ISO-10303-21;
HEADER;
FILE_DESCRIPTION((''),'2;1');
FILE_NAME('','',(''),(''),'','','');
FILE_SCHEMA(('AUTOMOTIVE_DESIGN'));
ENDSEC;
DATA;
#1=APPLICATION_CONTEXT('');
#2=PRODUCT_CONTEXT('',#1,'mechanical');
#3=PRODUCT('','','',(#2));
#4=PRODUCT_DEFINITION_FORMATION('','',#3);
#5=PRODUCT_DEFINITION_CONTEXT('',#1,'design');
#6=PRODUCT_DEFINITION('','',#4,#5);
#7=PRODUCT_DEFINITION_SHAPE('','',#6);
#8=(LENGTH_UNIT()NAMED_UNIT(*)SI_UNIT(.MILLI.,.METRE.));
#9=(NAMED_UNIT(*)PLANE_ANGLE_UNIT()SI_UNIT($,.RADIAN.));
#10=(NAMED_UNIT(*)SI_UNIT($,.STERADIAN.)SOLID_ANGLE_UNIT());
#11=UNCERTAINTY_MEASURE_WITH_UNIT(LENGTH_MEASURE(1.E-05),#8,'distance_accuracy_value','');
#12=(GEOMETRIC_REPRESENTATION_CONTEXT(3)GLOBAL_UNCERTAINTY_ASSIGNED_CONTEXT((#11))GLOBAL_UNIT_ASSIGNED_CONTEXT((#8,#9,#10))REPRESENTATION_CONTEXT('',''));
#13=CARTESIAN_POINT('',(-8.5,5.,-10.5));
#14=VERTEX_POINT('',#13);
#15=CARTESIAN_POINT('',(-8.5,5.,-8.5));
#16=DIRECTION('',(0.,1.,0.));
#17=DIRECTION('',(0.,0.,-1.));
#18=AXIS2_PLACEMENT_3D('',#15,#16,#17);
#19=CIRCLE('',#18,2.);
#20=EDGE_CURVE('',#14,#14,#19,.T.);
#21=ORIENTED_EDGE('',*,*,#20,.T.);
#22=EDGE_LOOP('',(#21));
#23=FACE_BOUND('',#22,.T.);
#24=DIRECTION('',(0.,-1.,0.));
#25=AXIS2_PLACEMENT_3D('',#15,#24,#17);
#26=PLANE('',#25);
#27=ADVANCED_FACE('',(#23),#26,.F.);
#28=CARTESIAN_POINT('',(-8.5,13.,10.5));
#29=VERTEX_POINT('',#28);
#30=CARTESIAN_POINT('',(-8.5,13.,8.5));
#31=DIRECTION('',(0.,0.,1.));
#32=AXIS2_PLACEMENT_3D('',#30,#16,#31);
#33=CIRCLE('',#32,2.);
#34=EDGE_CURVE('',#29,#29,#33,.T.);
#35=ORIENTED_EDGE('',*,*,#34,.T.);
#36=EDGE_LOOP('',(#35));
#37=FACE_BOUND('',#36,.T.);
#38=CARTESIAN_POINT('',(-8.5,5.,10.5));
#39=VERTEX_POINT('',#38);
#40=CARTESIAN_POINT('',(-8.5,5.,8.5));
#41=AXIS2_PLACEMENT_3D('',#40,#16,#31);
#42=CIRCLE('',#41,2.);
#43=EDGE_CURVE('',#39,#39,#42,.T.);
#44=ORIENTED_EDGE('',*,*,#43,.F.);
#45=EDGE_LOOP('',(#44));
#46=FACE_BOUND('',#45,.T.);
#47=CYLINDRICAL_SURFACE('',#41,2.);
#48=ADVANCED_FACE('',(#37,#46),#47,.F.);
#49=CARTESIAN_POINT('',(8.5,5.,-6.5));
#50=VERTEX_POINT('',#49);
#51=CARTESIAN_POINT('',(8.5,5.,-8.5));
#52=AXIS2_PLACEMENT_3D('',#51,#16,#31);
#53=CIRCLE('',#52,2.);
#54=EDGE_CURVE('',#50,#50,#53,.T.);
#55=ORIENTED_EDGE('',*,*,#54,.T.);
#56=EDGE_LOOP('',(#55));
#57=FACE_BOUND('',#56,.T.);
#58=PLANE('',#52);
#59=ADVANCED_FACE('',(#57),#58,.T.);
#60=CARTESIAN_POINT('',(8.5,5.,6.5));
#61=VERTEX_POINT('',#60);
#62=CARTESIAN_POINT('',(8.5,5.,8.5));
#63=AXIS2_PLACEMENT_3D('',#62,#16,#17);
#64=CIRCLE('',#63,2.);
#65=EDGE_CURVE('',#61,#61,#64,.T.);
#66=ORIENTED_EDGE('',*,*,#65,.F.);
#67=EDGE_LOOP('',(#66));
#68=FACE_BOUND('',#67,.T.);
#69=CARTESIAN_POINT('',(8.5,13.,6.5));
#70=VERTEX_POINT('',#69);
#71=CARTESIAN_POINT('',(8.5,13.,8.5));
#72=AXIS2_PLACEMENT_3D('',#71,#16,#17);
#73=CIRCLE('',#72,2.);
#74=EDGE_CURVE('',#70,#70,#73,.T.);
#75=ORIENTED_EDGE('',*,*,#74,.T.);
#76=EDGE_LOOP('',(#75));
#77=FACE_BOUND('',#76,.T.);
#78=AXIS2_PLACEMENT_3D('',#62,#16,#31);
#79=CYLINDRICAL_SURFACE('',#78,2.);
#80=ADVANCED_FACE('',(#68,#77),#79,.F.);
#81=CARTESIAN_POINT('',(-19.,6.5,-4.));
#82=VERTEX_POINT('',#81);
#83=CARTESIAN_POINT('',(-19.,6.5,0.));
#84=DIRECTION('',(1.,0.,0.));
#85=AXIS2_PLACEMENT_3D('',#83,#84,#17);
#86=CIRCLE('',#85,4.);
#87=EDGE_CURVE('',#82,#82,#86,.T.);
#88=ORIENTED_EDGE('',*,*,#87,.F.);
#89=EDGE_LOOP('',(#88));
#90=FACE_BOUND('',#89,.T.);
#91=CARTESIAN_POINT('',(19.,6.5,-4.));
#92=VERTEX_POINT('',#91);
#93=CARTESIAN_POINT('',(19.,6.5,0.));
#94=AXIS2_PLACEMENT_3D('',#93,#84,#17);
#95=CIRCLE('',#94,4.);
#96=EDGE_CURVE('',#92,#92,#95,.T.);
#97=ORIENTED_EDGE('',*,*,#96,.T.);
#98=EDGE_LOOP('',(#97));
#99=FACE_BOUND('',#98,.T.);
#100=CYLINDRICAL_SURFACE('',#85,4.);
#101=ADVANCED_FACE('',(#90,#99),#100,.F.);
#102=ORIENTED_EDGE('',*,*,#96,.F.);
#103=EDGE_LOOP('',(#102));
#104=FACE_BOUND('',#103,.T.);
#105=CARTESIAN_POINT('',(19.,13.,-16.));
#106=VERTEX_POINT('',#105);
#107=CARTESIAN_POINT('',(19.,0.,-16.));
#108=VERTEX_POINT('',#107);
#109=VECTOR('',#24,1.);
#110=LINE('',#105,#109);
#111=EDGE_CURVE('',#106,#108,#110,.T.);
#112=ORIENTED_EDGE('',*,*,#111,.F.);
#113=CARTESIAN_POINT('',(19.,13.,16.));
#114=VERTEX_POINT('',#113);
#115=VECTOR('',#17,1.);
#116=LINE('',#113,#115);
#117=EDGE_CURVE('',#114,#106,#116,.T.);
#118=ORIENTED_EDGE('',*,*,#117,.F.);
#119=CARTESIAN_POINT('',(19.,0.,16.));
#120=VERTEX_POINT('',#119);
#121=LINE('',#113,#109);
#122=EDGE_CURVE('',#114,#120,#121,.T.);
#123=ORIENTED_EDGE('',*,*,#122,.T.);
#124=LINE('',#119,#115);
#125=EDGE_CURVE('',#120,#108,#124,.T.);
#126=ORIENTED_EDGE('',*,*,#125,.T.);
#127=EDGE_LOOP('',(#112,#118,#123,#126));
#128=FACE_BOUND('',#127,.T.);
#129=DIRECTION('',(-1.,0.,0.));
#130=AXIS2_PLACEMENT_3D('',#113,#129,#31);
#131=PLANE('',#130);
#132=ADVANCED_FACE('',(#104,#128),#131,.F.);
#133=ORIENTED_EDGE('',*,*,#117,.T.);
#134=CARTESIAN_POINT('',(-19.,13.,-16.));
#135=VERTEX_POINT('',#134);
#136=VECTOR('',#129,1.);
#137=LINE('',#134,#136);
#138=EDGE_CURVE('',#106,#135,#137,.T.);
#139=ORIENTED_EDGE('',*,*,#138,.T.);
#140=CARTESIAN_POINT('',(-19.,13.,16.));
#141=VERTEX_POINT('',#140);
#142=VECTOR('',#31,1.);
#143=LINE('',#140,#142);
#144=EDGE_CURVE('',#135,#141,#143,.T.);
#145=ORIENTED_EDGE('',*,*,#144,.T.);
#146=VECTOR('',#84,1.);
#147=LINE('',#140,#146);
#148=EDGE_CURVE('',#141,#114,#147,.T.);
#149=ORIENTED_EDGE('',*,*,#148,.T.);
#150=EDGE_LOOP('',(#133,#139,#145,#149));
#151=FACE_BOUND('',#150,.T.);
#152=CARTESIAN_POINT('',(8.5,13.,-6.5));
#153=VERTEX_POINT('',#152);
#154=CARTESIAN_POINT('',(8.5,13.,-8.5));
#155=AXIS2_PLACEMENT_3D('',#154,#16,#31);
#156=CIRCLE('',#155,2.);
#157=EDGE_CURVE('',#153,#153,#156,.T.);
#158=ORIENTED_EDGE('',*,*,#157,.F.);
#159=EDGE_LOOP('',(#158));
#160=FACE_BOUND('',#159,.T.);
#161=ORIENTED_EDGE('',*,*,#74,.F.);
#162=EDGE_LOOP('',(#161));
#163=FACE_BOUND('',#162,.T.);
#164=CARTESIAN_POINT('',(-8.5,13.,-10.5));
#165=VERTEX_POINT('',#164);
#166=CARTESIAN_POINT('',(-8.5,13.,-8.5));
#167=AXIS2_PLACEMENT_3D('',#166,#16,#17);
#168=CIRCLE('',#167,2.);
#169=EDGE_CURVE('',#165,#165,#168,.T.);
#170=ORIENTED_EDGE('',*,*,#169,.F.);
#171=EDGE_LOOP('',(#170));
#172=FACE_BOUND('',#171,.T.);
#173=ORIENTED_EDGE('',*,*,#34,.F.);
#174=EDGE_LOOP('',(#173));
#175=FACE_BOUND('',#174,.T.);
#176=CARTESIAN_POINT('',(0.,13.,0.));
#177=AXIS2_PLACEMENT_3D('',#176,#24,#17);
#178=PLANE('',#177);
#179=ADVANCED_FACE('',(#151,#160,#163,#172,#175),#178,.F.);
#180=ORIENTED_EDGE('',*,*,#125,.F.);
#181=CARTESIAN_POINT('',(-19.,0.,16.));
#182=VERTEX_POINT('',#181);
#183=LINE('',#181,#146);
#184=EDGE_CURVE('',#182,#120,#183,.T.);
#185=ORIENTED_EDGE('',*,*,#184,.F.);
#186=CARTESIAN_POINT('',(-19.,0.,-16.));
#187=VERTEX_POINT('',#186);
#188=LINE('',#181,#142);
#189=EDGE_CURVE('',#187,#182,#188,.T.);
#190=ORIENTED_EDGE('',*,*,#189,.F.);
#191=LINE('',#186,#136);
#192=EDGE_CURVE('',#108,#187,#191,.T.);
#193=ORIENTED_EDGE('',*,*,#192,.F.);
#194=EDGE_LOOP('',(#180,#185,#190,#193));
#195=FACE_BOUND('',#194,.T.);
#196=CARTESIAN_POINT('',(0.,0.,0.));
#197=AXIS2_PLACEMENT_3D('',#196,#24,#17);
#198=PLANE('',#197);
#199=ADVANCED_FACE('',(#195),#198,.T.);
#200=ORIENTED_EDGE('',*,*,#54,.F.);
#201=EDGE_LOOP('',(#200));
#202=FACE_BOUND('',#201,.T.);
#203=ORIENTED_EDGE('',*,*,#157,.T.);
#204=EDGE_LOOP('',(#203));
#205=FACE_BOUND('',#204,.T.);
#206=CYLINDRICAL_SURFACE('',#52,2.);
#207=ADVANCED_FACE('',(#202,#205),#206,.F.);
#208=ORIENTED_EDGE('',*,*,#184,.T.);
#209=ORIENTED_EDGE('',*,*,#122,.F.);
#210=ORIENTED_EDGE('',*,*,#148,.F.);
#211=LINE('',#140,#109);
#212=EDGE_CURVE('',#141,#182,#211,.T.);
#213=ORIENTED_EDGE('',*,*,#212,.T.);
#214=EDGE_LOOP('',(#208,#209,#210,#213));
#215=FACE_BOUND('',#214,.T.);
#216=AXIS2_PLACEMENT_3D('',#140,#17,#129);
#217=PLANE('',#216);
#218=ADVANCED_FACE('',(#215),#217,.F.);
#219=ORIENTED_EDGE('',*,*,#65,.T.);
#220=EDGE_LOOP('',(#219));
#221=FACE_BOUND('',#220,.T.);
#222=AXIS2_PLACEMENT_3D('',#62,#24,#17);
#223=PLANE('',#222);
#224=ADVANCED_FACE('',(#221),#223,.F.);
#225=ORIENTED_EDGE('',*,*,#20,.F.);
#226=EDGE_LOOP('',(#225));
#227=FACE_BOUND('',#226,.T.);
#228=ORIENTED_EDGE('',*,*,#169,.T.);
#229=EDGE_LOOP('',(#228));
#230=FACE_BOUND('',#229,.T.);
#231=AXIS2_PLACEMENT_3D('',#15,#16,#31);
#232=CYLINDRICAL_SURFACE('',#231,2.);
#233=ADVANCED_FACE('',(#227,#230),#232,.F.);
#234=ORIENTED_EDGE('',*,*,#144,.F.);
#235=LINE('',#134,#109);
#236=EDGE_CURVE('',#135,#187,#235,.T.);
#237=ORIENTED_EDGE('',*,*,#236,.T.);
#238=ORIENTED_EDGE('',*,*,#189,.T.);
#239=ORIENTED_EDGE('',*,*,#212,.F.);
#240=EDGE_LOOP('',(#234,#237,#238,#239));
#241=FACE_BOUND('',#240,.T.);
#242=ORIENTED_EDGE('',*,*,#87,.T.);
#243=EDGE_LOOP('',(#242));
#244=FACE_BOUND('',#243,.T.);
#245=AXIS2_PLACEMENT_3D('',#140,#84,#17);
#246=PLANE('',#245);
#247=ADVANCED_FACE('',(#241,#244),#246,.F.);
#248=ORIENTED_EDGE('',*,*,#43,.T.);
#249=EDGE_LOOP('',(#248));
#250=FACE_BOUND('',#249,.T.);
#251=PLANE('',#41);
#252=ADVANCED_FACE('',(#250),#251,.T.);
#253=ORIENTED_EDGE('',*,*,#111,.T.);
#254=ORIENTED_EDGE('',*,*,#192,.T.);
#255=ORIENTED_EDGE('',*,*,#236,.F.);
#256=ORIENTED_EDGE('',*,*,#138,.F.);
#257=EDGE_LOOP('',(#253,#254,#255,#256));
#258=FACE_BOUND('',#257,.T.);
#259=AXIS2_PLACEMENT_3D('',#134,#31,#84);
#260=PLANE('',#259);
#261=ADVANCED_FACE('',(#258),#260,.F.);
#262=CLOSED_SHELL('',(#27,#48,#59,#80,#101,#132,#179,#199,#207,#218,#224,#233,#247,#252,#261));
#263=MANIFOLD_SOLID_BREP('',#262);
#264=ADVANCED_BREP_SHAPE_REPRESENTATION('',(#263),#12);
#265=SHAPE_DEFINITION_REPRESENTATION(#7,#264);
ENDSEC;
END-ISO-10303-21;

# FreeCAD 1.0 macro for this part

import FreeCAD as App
import Part
import Sketcher


def add_polygon(sketch, points):
    """Adds a closed chain of lines whose ends are joined by coincident constraints."""
    first, n = sketch.GeometryCount, len(points)
    for a, b in zip(points, points[1:] + points[:1]):
        sketch.addGeometry(Part.LineSegment(App.Vector(*a, 0), App.Vector(*b, 0)), False)
    for i in range(n):
        sketch.addConstraint(Sketcher.Constraint("Coincident", first + i, 2, first + (i + 1) % n, 1))

doc = App.newDocument("Part")
body = doc.addObject("PartDesign::Body", "Body")

# Sketch on XZ plane
sketch1 = doc.addObject("Sketcher::SketchObject", "Sketch")
body.addObject(sketch1)
sketch1.AttachmentSupport = (doc.XZ_Plane, [""])
sketch1.MapMode = "FlatFace"
add_polygon(sketch1, [(-19, -16), (-19, 16), (19, 16), (19, -16)])  # lines 0-3
sketch1.addConstraint(Sketcher.Constraint("Vertical", 0))
sketch1.addConstraint(Sketcher.Constraint("Horizontal", 1))
sketch1.addConstraint(Sketcher.Constraint("Vertical", 2))
sketch1.addConstraint(Sketcher.Constraint("Horizontal", 3))
sketch1.addConstraint(Sketcher.Constraint("Symmetric", 0, 2, 2, 2, -1, 1))
sketch1.addConstraint(Sketcher.Constraint("DistanceX", 1, 1, 1, 2, 38.0))
sketch1.addConstraint(Sketcher.Constraint("DistanceY", 0, 1, 0, 2, 32.0))
pad1 = doc.addObject("PartDesign::Pad", "Pad")
body.addObject(pad1)
pad1.Profile = sketch1
pad1.Length = 13
pad1.Reversed = True

# Sketch on XZ plane
sketch2 = doc.addObject("Sketcher::SketchObject", "Sketch001")
body.addObject(sketch2)
sketch2.AttachmentSupport = (doc.XZ_Plane, [""])
sketch2.MapMode = "FlatFace"
sketch2.AttachmentOffset = App.Placement(App.Vector(0, 0, -13), App.Rotation())
sketch2.addGeometry(Part.Circle(App.Vector(8.5, -8.5, 0), App.Vector(0, 0, 1), 2), False)
sketch2.addGeometry(Part.Circle(App.Vector(-8.5, -8.5, 0), App.Vector(0, 0, 1), 2), False)
sketch2.addGeometry(Part.Circle(App.Vector(-8.5, 8.5, 0), App.Vector(0, 0, 1), 2), False)
sketch2.addGeometry(Part.Circle(App.Vector(8.5, 8.5, 0), App.Vector(0, 0, 1), 2), False)
sketch2.addConstraint(Sketcher.Constraint("Equal", 0, 1))
sketch2.addConstraint(Sketcher.Constraint("Equal", 1, 2))
sketch2.addConstraint(Sketcher.Constraint("Equal", 2, 3))
sketch2.addConstraint(Sketcher.Constraint("Symmetric", 0, 3, 2, 3, -1, 1))
sketch2.addConstraint(Sketcher.Constraint("Symmetric", 1, 3, 3, 3, -1, 1))
sketch2.addConstraint(Sketcher.Constraint("Symmetric", 0, 3, 1, 3, -2))
sketch2.addConstraint(Sketcher.Constraint("Diameter", 0, 4.0))
sketch2.addConstraint(Sketcher.Constraint("DistanceX", 1, 3, 0, 3, 17.0))
sketch2.addConstraint(Sketcher.Constraint("DistanceY", 1, 3, 2, 3, 17.0))
pocket1 = doc.addObject("PartDesign::Pocket", "Pocket")
body.addObject(pocket1)
pocket1.Profile = sketch2
pocket1.Length = 8
pocket1.Reversed = True

# Sketch on YZ plane
sketch3 = doc.addObject("Sketcher::SketchObject", "Sketch002")
body.addObject(sketch3)
sketch3.AttachmentSupport = (doc.YZ_Plane, [""])
sketch3.MapMode = "FlatFace"
sketch3.AttachmentOffset = App.Placement(App.Vector(0, 0, 19), App.Rotation())
sketch3.addGeometry(Part.Circle(App.Vector(6.5, 0, 0), App.Vector(0, 0, 1), 4), False)
sketch3.addConstraint(Sketcher.Constraint("PointOnObject", 0, 3, -1))
sketch3.addConstraint(Sketcher.Constraint("Diameter", 0, 8.0))
sketch3.addConstraint(Sketcher.Constraint("DistanceX", -1, 1, 0, 3, 6.5))
pocket2 = doc.addObject("PartDesign::Pocket", "Pocket001")
body.addObject(pocket2)
pocket2.Profile = sketch3
pocket2.Type = "ThroughAll"

doc.recompute()
